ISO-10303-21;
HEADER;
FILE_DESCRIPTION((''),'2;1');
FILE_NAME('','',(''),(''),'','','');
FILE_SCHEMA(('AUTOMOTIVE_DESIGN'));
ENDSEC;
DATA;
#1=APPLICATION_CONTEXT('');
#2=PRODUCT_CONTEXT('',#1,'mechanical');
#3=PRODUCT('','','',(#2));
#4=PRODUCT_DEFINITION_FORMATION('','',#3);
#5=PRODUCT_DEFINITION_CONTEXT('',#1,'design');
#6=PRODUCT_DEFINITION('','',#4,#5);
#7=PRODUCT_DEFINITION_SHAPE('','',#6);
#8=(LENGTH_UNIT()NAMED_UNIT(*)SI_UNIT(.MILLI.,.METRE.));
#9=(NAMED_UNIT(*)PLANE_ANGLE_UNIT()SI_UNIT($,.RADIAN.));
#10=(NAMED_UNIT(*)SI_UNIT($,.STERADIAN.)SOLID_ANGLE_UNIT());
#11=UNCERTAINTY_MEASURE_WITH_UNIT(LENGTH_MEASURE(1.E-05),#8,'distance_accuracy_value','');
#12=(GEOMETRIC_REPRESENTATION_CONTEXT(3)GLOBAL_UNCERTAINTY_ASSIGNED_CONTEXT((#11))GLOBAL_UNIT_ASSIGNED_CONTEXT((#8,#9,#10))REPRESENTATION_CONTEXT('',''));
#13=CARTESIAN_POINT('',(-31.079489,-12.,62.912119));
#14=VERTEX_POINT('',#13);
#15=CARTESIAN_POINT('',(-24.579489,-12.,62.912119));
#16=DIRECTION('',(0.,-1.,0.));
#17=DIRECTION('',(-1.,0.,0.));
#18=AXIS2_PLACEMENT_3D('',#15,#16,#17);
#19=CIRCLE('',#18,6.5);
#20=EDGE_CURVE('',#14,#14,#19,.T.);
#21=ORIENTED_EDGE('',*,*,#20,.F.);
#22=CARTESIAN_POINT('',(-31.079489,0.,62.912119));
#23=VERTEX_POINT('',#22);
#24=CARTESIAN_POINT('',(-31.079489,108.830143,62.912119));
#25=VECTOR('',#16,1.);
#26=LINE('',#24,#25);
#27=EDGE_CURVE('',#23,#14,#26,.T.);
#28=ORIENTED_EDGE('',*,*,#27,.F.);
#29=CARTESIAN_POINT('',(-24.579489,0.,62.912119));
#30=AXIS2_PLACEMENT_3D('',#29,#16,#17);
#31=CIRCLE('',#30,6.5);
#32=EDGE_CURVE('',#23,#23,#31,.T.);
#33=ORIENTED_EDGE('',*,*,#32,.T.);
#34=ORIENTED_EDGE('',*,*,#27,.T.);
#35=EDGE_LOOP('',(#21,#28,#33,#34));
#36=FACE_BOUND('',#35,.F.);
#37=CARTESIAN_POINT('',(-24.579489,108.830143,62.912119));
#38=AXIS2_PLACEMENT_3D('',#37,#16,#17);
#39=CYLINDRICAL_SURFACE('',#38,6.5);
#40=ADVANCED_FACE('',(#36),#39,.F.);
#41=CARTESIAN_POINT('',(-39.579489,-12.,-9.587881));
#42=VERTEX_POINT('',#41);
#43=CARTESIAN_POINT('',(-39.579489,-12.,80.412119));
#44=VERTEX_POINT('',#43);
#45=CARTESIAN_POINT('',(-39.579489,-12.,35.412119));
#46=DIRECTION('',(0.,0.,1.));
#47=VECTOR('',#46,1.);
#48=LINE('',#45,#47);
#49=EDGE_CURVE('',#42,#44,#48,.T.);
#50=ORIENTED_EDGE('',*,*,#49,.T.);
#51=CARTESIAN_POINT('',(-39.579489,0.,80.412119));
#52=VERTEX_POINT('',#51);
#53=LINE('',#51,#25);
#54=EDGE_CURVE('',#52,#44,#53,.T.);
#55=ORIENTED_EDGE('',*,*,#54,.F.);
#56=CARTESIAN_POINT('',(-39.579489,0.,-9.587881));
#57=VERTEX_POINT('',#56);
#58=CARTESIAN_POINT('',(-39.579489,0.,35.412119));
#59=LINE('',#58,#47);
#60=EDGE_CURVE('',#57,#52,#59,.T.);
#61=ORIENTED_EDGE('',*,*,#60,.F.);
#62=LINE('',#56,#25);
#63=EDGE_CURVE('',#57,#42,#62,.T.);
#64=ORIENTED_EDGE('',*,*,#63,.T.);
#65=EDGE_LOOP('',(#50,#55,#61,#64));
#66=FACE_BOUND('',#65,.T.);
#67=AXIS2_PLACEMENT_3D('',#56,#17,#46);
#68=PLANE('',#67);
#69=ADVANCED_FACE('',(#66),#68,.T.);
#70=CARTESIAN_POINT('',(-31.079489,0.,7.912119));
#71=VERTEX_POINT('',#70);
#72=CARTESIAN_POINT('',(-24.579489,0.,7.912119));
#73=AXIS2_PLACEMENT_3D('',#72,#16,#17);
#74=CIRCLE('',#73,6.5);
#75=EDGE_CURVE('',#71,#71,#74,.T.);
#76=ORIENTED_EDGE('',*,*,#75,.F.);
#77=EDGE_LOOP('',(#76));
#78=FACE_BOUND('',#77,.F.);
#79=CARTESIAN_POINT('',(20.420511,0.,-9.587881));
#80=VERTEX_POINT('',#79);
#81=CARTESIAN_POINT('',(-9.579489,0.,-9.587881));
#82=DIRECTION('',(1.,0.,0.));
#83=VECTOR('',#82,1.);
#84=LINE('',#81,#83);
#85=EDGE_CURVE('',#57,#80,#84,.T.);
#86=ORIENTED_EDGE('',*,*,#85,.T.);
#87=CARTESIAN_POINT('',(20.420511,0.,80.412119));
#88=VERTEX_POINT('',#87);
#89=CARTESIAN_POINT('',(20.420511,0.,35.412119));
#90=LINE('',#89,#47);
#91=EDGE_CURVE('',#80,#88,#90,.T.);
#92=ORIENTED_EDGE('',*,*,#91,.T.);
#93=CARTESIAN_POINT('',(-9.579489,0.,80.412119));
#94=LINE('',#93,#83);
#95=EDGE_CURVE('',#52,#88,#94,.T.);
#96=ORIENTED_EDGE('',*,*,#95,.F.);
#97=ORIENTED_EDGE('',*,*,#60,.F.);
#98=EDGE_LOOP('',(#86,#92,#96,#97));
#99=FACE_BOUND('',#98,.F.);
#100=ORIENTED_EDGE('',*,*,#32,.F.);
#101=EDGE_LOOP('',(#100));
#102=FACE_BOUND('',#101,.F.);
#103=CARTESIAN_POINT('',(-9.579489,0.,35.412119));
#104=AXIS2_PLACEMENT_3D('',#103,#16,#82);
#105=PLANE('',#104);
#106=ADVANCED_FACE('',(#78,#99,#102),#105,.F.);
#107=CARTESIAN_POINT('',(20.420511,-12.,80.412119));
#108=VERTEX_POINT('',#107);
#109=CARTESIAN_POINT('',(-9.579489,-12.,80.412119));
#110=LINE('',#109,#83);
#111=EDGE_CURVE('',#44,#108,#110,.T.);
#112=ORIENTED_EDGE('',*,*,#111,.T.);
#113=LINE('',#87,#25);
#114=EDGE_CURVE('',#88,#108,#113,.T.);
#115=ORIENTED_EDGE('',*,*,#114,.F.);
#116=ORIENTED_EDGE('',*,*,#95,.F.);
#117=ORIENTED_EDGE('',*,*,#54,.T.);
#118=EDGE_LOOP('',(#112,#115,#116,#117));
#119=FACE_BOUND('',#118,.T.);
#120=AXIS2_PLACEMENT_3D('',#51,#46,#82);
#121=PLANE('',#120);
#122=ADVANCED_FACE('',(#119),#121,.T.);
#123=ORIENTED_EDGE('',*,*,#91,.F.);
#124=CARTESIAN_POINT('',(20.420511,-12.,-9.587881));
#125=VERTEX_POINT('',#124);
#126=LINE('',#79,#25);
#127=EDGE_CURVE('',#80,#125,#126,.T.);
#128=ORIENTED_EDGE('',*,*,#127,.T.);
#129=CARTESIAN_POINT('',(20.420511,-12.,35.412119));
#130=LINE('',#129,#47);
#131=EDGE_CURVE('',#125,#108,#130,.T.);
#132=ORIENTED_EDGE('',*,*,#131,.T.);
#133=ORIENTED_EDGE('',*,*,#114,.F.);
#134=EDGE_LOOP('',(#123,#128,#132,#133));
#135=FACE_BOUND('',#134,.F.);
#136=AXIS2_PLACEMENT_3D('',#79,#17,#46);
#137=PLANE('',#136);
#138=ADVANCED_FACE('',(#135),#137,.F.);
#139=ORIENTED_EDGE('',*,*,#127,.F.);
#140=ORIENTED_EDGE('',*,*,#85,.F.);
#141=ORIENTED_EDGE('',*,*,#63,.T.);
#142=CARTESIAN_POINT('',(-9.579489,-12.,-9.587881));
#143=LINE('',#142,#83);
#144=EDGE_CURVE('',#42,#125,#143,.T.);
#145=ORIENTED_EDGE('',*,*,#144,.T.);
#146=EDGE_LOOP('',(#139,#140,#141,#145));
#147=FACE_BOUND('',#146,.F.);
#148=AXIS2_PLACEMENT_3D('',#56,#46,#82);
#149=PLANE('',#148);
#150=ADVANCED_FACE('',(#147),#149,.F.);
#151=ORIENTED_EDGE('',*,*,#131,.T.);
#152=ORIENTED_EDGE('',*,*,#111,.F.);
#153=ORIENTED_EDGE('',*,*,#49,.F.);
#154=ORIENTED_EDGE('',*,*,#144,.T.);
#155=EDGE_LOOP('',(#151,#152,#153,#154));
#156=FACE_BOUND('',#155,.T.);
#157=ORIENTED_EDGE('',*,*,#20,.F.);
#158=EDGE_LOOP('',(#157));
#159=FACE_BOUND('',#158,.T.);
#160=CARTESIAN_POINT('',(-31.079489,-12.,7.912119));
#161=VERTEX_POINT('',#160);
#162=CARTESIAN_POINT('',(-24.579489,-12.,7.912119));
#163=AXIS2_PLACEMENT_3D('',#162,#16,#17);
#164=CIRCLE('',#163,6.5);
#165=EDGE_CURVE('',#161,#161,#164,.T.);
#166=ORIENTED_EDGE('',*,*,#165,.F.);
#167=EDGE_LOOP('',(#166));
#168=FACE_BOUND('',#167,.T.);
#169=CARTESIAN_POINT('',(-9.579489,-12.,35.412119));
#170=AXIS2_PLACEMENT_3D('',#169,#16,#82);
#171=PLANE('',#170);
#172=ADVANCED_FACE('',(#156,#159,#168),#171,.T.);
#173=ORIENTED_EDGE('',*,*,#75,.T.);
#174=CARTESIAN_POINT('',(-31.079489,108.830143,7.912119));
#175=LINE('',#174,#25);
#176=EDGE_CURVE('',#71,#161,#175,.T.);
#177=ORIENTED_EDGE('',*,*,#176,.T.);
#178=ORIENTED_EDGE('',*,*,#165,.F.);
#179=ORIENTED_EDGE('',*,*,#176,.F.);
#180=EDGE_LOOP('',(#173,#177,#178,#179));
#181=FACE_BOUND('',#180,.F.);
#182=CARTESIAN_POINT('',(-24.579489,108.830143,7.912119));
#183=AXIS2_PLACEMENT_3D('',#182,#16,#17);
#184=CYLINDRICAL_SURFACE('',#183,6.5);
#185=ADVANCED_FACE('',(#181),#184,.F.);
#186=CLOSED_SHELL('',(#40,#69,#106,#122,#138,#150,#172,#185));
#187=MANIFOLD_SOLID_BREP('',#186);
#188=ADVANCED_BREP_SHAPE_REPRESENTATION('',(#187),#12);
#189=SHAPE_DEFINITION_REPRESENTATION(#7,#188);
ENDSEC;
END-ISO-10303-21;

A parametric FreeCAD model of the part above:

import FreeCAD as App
import Part
import Sketcher

V = App.Vector
Q = App.Units.Quantity

doc = App.newDocument("Part")
params = doc.addObject("Spreadsheet::Sheet", "Params")
for row, (alias, value) in enumerate([
    ("sketch1_width", "60 mm"),
    ("sketch1_height", "90 mm"),
    ("pad1_length", "12 mm"),
    ("sketch2_diameter", "13 mm"),
    ("hole_diameter", "13 mm"),
], start=1):
    params.set(f"A{row}", alias)
    params.set(f"B{row}", "=" + value)
    params.setAlias(f"B{row}", alias)

body = doc.addObject("PartDesign::Body", "Body")

# Sketch on XZ plane
sketch1 = body.newObject("Sketcher::SketchObject", "Sketch")
sketch1.AttachmentSupport = (doc.getObject("XZ_Plane"), [""])
sketch1.MapMode = "FlatFace"
sketch1.addGeometry([
    Part.LineSegment(V(-39.579489, 80.412119, 0), V(-39.579489, -9.587881, 0)),
    Part.LineSegment(V(-39.579489, -9.587881, 0), V(20.420511, -9.587881, 0)),
    Part.LineSegment(V(20.420511, -9.587881, 0), V(20.420511, 80.412119, 0)),
    Part.LineSegment(V(20.420511, 80.412119, 0), V(-39.579489, 80.412119, 0)),
], False)
sketch1.addConstraint([
    Sketcher.Constraint("Coincident", 0, 2, 1, 1),
    Sketcher.Constraint("Coincident", 1, 2, 2, 1),
    Sketcher.Constraint("Coincident", 2, 2, 3, 1),
    Sketcher.Constraint("Coincident", 3, 2, 0, 1),
    Sketcher.Constraint("Vertical", 0),
    Sketcher.Constraint("Horizontal", 1),
    Sketcher.Constraint("Vertical", 2),
    Sketcher.Constraint("Horizontal", 3),
    Sketcher.Constraint("DistanceX", 1, 1, 1, 2, Q("60 mm")),
    Sketcher.Constraint("DistanceY", 0, 2, 0, 1, Q("90 mm")),
    Sketcher.Constraint("DistanceX", 0, 2, -1, 1, Q("39.579489 mm")),
    Sketcher.Constraint("DistanceY", 0, 2, -1, 1, Q("9.587881 mm")),
])
sketch1.setExpression("Constraints[8]", "Params.sketch1_width")
sketch1.setExpression("Constraints[9]", "Params.sketch1_height")
pad1 = body.newObject("PartDesign::Pad", "Pad")
pad1.Profile = sketch1
pad1.setExpression("Length", "Params.pad1_length")

# Sketch on XZ plane
sketch2 = body.newObject("Sketcher::SketchObject", "Sketch001")
sketch2.AttachmentSupport = (doc.getObject("XZ_Plane"), [""])
sketch2.MapMode = "FlatFace"
sketch2.addGeometry([
    Part.Circle(V(-24.579489, 62.912119, 0), V(0, 0, 1), 6.5),
    Part.Circle(V(-24.579489, 7.912119, 0), V(0, 0, 1), 6.5),
], False)
sketch2.addConstraint([
    Sketcher.Constraint("Equal", 0, 1),
    Sketcher.Constraint("Vertical", 0, 3, 1, 3),
    Sketcher.Constraint("Diameter", 0, Q("13 mm")),
    Sketcher.Constraint("DistanceY", 1, 3, 0, 3, Q("55 mm")),
    Sketcher.Constraint("DistanceX", 0, 3, -1, 1, Q("24.579489 mm")),
    Sketcher.Constraint("DistanceY", -1, 1, 0, 3, Q("62.912119 mm")),
])
sketch2.setExpression("Constraints[2]", "Params.sketch2_diameter")
doc.recompute()
hole = body.newObject("PartDesign::Hole", "Hole")
hole.Profile = sketch2
hole.ThreadType = "None"
hole.setExpression("Diameter", "Params.hole_diameter")
hole.DepthType = "ThroughAll"
hole.Reversed = True

doc.recompute()
